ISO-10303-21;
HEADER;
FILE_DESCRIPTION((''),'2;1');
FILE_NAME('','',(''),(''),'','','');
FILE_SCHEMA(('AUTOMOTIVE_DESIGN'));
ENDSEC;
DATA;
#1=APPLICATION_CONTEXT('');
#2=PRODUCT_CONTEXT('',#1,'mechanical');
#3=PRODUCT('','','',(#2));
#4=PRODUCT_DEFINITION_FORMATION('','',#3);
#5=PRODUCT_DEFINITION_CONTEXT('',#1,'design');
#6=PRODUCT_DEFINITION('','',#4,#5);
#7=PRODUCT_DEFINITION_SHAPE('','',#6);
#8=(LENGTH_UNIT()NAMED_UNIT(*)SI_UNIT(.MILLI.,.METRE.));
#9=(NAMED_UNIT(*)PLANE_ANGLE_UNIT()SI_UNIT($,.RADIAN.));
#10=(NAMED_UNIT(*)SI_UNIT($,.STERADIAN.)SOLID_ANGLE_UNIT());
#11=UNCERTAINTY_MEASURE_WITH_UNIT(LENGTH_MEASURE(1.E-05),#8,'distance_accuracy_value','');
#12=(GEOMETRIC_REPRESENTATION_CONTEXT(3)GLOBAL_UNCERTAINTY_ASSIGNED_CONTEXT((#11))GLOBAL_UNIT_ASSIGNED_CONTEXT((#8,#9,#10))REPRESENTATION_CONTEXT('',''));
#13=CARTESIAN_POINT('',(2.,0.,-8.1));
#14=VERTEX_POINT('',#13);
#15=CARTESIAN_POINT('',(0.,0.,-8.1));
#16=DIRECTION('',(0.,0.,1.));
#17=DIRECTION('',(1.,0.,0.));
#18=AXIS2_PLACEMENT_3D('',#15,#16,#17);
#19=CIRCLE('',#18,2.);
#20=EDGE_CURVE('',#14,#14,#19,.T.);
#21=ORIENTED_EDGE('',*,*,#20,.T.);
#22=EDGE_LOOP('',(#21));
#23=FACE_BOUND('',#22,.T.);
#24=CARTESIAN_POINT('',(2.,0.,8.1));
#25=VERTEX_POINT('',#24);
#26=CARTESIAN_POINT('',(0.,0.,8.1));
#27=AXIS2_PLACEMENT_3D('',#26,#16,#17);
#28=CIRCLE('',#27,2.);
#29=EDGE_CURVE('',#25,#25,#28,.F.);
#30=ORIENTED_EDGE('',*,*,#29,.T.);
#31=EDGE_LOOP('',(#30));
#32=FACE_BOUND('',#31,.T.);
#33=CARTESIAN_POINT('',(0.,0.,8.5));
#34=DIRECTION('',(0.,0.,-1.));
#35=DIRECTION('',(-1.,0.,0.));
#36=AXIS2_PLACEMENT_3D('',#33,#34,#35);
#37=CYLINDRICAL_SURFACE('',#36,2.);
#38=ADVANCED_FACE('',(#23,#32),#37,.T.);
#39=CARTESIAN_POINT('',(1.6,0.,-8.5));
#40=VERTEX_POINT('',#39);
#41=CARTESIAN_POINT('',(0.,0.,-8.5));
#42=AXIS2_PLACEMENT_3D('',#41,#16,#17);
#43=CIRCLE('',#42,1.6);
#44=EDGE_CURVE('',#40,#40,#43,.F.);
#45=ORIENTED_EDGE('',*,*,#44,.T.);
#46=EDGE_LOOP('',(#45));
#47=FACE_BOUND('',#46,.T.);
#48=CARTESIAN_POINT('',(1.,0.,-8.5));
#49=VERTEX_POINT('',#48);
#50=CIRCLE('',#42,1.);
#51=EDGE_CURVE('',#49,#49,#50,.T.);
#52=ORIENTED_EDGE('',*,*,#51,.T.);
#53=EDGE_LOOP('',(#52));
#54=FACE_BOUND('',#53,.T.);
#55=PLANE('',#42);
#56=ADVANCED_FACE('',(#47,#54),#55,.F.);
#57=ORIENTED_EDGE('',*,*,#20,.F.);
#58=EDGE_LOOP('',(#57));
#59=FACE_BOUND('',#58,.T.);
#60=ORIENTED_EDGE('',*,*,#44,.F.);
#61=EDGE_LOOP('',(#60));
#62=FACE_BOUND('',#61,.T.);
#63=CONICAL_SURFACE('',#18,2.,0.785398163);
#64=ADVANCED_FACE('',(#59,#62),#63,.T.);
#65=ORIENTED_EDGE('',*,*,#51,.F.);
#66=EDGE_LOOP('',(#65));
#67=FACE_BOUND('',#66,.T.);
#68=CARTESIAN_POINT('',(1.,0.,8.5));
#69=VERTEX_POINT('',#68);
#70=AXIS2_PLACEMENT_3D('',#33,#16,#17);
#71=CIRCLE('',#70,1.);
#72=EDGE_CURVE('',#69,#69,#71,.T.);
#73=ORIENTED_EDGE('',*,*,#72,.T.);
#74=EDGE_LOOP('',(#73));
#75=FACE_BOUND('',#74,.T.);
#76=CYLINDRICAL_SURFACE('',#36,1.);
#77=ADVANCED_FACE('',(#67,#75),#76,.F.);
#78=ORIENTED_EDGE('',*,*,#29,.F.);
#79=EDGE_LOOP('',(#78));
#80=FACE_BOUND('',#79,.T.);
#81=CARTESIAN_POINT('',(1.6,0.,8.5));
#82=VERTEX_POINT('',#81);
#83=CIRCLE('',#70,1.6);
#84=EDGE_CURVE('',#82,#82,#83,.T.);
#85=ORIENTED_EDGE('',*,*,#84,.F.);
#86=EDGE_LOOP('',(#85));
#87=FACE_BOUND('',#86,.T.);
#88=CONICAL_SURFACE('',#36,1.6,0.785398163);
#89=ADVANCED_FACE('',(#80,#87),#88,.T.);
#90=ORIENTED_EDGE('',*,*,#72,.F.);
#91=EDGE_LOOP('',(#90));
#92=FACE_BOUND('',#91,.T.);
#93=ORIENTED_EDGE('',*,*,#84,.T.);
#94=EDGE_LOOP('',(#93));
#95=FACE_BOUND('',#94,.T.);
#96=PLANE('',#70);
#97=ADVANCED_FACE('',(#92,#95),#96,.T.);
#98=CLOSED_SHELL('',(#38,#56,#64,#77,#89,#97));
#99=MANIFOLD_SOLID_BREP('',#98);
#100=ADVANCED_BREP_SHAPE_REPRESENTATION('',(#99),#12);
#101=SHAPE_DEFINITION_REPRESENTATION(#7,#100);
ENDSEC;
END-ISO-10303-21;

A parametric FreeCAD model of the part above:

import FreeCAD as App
import Part
import Sketcher


def edges_at(feature, points):
    """Names of the edges that pass closest to the given points."""
    edges = feature.Shape.Edges
    near = lambda p: min(range(len(edges)), key=lambda i: edges[i].distToShape(Part.Vertex(*p))[0])
    return sorted({f"Edge{near(p) + 1}" for p in points})

doc = App.newDocument("Part")
body = doc.addObject("PartDesign::Body", "Body")

# Sketch on XY plane
sketch1 = body.newObject("Sketcher::SketchObject", "Sketch")
sketch1.AttachmentSupport = (doc.getObject("XY_Plane"), [""])
sketch1.MapMode = "FlatFace"
sketch1.addGeometry([
    Part.Circle(App.Vector(0, 0, 0), App.Vector(0, 0, 1), 2),
    Part.Circle(App.Vector(0, 0, 0), App.Vector(0, 0, 1), 1),
], False)
sketch1.addConstraint([
    Sketcher.Constraint("Coincident", 0, 3, -1, 1),
    Sketcher.Constraint("Coincident", 1, 3, -1, 1),
    Sketcher.Constraint("Diameter", 0, 4.0),
    Sketcher.Constraint("Diameter", 1, 2.0),
])
pad1 = body.newObject("PartDesign::Pad", "Pad")
pad1.Profile = sketch1
pad1.Length = 17
pad1.Midplane = True
doc.recompute()

chamfer = body.newObject("PartDesign::Chamfer", "Chamfer")
chamfer.Base = (pad1, edges_at(pad1, [(-2, 0, -8.5), (-2, 0, 8.5)]))
chamfer.Size = 0.4

doc.recompute()
